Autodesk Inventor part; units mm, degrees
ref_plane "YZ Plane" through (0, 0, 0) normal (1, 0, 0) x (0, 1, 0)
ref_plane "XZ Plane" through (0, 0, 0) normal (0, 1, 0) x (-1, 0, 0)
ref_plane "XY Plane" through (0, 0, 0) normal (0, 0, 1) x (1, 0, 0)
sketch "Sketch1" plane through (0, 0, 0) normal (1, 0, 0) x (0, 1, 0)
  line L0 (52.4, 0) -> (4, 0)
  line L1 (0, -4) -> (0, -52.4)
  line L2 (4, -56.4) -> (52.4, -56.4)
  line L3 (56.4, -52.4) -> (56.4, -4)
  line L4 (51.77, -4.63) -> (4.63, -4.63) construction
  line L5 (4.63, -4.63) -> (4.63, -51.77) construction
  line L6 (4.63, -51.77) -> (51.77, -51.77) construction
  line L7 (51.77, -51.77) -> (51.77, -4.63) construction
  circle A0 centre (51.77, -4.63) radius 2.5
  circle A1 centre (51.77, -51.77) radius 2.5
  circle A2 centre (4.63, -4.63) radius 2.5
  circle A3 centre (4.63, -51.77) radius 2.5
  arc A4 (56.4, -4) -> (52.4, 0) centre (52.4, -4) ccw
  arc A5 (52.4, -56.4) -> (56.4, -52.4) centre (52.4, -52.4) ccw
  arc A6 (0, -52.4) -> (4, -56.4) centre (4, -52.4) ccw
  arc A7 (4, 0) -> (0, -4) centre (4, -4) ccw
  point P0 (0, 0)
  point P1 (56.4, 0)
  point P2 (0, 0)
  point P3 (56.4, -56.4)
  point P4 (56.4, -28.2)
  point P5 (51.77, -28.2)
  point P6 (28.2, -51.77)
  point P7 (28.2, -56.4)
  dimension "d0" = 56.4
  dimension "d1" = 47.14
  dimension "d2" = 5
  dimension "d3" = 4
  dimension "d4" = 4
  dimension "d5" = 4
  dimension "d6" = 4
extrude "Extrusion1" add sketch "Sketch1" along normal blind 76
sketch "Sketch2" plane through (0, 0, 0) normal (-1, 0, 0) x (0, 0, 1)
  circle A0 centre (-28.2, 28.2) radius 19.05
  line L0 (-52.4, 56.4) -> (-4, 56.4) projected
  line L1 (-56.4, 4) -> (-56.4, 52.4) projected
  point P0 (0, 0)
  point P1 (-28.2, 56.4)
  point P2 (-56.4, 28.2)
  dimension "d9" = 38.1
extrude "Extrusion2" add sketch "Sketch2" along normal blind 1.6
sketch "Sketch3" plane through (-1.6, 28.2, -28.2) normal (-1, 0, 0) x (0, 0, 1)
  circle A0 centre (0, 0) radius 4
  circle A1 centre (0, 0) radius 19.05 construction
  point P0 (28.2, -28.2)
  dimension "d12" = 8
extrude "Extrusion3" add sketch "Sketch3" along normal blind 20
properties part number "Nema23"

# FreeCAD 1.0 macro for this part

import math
import FreeCAD as App
import Part
import Sketcher
from FreeCAD import Vector
Q = App.Units.Quantity

doc = App.newDocument("Part")
body = doc.addObject("PartDesign::Body", "Body")

# Sketch on YZ plane
sketch1 = body.newObject("Sketcher::SketchObject", "Sketch")
sketch1.AttachmentSupport = (doc.getObject("YZ_Plane"), [""])
sketch1.MapMode = "FlatFace"
sketch1.addGeometry([
    Part.ArcOfCircle(Part.Circle(Vector(52.4, -4, 0), Vector(0, 0, 1), 4), math.radians(0), math.radians(90)),  # 0
    Part.LineSegment(Vector(52.4, 0, 0), Vector(4, 0, 0)),  # 1
    Part.ArcOfCircle(Part.Circle(Vector(4, -4, 0), Vector(0, 0, 1), 4), math.radians(90), math.radians(180)),  # 2
    Part.LineSegment(Vector(0, -4, 0), Vector(0, -52.4, 0)),  # 3
    Part.ArcOfCircle(Part.Circle(Vector(4, -52.4, 0), Vector(0, 0, 1), 4), math.radians(180), math.radians(270)),  # 4
    Part.LineSegment(Vector(4, -56.4, 0), Vector(52.4, -56.4, 0)),  # 5
    Part.ArcOfCircle(Part.Circle(Vector(52.4, -52.4, 0), Vector(0, 0, 1), 4), math.radians(-90), math.radians(0)),  # 6
    Part.LineSegment(Vector(56.4, -52.4, 0), Vector(56.4, -4, 0)),  # 7
    Part.Circle(Vector(4.63, -51.77, 0), Vector(0, 0, 1), 2.5),  # 8
    Part.Circle(Vector(51.77, -51.77, 0), Vector(0, 0, 1), 2.5),  # 9
    Part.Circle(Vector(4.63, -4.63, 0), Vector(0, 0, 1), 2.5),  # 10
    Part.Circle(Vector(51.77, -4.63, 0), Vector(0, 0, 1), 2.5),  # 11
], False)
sketch1.addConstraint([
    Sketcher.Constraint("Tangent", 0, 2, 1, 1),
    Sketcher.Constraint("Tangent", 1, 2, 2, 1),
    Sketcher.Constraint("Tangent", 2, 2, 3, 1),
    Sketcher.Constraint("Tangent", 3, 2, 4, 1),
    Sketcher.Constraint("Tangent", 4, 2, 5, 1),
    Sketcher.Constraint("Tangent", 5, 2, 6, 1),
    Sketcher.Constraint("Tangent", 6, 2, 7, 1),
    Sketcher.Constraint("Tangent", 7, 2, 0, 1),
    Sketcher.Constraint("Horizontal", 1),
    Sketcher.Constraint("Vertical", 3),
    Sketcher.Constraint("Horizontal", 5),
    Sketcher.Constraint("Vertical", 7),
    Sketcher.Constraint("Equal", 0, 2),
    Sketcher.Constraint("Equal", 2, 4),
    Sketcher.Constraint("Equal", 4, 6),
    Sketcher.Constraint("Equal", 8, 9),
    Sketcher.Constraint("Equal", 9, 10),
    Sketcher.Constraint("Equal", 10, 11),
    Sketcher.Constraint("PointOnObject", 0, 2, -1),
    Sketcher.Constraint("PointOnObject", 2, 2, -2),
    Sketcher.Constraint("Horizontal", 8, 3, 9, 3),
    Sketcher.Constraint("Horizontal", 10, 3, 11, 3),
    Sketcher.Constraint("Vertical", 8, 3, 10, 3),
    Sketcher.Constraint("Vertical", 9, 3, 11, 3),
    Sketcher.Constraint("Equal", 5, 3),
    Sketcher.Constraint("Diameter", 8, Q("5 mm")),
    Sketcher.Constraint("Radius", 0, Q("4 mm")),
    Sketcher.Constraint("DistanceY", 4, 2, -1, 1, Q("56.4 mm")),
    Sketcher.Constraint("DistanceX", 8, 3, 9, 3, Q("47.14 mm")),
    Sketcher.Constraint("DistanceY", 8, 3, 10, 3, Q("47.14 mm")),
    Sketcher.Constraint("DistanceX", -1, 1, 8, 3, Q("4.63 mm")),
    Sketcher.Constraint("DistanceY", 8, 3, -1, 1, Q("51.77 mm")),
])
pad1 = body.newObject("PartDesign::Pad", "Pad")
pad1.Profile = sketch1
pad1.Length = 76

# Sketch on YZ plane
sketch2 = body.newObject("Sketcher::SketchObject", "Sketch001")
sketch2.AttachmentSupport = (doc.getObject("YZ_Plane"), [""])
sketch2.MapMode = "FlatFace"
sketch2.addGeometry(Part.Circle(Vector(28.2, -28.2, 0), Vector(0, 0, 1), 19.05), False)
sketch2.addConstraint([
    Sketcher.Constraint("Diameter", 0, Q("38.1 mm")),
    Sketcher.Constraint("DistanceX", -1, 1, 0, 3, Q("28.2 mm")),
    Sketcher.Constraint("DistanceY", 0, 3, -1, 1, Q("28.2 mm")),
])
pad2 = body.newObject("PartDesign::Pad", "Pad001")
pad2.Profile = sketch2
pad2.Length = 1.6
pad2.Reversed = True

# Sketch on YZ plane
sketch3 = body.newObject("Sketcher::SketchObject", "Sketch002")
sketch3.AttachmentSupport = (doc.getObject("YZ_Plane"), [""])
sketch3.MapMode = "FlatFace"
sketch3.AttachmentOffset = App.Placement(Vector(0, 0, -1.6), App.Rotation())
sketch3.addGeometry(Part.Circle(Vector(28.2, -28.2, 0), Vector(0, 0, 1), 4), False)
sketch3.addConstraint([
    Sketcher.Constraint("Diameter", 0, Q("8 mm")),
    Sketcher.Constraint("DistanceX", -1, 1, 0, 3, Q("28.2 mm")),
    Sketcher.Constraint("DistanceY", 0, 3, -1, 1, Q("28.2 mm")),
])
pad3 = body.newObject("PartDesign::Pad", "Pad002")
pad3.Profile = sketch3
pad3.Length = 20
pad3.Reversed = True

doc.recompute()
